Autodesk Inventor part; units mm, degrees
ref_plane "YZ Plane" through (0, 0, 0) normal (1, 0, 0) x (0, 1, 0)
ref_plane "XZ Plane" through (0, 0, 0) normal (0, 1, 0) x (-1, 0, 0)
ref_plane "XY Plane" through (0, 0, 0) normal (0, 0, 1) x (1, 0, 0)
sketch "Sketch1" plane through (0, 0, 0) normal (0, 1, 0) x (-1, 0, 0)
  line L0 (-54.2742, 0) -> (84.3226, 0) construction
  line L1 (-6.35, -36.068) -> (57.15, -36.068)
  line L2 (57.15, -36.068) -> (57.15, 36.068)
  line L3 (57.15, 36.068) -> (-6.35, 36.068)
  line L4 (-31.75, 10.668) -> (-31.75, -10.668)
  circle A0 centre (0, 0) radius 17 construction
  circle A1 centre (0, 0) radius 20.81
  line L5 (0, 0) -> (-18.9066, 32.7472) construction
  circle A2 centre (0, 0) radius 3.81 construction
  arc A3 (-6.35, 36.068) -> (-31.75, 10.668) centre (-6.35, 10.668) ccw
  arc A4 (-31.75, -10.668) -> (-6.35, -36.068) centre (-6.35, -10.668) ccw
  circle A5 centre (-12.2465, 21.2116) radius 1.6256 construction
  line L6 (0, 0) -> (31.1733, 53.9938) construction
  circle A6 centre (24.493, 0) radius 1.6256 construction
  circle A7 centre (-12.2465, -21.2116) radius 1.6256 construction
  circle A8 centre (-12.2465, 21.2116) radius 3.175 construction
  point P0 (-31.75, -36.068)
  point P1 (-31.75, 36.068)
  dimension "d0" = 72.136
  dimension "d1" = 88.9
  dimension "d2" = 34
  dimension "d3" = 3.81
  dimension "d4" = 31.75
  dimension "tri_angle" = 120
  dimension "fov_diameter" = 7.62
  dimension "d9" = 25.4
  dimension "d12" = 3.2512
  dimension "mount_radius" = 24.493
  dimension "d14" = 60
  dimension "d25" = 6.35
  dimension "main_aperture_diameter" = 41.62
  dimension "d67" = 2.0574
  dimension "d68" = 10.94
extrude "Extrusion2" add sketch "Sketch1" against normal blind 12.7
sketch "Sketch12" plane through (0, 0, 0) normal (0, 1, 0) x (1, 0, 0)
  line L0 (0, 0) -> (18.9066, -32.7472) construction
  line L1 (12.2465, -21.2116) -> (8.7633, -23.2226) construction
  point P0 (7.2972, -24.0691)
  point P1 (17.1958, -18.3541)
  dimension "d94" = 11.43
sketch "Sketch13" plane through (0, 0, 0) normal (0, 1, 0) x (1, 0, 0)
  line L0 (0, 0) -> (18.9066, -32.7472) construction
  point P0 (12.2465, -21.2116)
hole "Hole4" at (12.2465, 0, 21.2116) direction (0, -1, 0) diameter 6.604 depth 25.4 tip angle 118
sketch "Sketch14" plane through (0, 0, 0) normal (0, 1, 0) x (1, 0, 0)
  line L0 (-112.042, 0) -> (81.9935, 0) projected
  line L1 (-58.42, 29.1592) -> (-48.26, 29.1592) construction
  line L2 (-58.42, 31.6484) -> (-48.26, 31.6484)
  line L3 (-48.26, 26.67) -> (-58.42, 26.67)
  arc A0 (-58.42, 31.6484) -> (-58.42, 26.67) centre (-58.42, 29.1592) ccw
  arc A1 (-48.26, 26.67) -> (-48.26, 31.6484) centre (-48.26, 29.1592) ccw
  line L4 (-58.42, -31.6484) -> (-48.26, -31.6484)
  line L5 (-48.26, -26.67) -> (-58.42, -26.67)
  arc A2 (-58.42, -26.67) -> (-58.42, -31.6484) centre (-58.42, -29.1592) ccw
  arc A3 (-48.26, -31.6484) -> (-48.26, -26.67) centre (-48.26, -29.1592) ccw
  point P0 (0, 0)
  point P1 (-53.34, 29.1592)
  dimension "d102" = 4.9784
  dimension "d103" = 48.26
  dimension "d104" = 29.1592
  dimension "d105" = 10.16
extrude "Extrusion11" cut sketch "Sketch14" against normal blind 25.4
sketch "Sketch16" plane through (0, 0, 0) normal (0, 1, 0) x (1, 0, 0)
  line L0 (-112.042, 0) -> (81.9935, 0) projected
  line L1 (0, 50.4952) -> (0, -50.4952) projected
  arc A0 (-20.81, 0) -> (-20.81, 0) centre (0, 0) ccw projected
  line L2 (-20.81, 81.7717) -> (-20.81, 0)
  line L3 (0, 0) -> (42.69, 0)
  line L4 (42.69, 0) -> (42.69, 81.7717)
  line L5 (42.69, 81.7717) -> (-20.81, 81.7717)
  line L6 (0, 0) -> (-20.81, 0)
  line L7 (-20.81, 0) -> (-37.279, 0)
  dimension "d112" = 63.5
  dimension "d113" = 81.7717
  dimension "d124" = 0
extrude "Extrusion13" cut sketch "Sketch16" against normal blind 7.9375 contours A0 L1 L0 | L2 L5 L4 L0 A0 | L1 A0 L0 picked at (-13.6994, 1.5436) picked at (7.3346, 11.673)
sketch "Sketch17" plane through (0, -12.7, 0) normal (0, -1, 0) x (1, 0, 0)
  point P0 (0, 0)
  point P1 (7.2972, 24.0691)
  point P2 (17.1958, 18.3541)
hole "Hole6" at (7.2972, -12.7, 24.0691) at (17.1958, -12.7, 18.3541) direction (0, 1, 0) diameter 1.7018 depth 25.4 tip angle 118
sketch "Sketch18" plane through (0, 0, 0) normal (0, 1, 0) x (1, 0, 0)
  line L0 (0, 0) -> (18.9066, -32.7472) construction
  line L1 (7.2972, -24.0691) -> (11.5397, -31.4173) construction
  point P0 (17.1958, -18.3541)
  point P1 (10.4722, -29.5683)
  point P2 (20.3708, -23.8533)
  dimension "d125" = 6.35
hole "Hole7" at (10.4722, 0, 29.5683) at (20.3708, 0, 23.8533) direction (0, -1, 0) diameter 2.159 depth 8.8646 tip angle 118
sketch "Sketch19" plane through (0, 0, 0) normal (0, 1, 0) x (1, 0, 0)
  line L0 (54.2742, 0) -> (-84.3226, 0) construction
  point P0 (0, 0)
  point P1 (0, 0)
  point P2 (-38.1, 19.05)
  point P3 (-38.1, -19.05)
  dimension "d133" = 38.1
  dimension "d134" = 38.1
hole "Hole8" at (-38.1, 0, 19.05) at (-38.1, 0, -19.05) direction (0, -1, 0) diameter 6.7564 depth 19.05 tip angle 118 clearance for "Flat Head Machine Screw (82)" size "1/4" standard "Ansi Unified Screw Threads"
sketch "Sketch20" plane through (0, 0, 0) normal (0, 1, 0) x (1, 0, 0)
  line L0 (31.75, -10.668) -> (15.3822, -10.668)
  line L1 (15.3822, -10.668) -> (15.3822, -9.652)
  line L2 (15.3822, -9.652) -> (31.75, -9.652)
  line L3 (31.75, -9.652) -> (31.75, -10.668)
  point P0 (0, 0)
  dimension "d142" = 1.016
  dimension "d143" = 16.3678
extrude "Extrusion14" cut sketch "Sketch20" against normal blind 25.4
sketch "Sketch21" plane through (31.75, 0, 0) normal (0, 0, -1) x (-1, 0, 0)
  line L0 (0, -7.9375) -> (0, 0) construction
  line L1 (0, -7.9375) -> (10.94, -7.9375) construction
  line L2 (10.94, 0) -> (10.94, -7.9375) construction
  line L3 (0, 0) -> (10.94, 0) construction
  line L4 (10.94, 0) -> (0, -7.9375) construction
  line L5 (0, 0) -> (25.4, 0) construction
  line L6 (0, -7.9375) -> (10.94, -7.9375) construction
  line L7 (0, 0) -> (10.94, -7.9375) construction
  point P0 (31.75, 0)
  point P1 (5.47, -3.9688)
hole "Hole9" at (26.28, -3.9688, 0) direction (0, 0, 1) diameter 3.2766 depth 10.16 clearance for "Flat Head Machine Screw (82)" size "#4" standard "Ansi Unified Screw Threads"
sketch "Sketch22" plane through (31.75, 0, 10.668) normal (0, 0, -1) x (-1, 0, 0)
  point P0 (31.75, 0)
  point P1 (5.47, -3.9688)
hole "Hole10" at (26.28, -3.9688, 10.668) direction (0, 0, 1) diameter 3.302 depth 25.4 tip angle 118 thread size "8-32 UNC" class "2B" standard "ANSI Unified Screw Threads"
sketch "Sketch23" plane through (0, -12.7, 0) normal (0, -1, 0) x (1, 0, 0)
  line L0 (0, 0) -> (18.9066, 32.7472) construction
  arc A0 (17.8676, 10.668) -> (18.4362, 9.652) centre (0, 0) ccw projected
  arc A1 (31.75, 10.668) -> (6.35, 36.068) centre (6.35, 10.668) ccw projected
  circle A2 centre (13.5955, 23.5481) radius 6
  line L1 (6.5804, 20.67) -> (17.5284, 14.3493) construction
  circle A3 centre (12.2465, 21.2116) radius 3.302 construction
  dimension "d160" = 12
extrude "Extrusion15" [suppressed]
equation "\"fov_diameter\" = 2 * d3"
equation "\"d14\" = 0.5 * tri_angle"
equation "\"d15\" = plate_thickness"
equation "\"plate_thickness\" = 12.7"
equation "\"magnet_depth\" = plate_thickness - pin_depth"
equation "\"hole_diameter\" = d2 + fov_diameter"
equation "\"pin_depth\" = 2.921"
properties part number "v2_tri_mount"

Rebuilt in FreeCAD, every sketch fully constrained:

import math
import FreeCAD as App
import Part
import Sketcher

V = App.Vector
Q = App.Units.Quantity

doc = App.newDocument("Part")
body = doc.addObject("PartDesign::Body", "Body")

sketch1 = doc.addObject("Sketcher::SketchObject", "Sketch")
body.addObject(sketch1)
sketch1.AttachmentSupport = (doc.XZ_Plane, [""])
sketch1.MapMode = "FlatFace"
sketch1.addGeometry([
    Part.ArcOfCircle(Part.Circle(V(6.35, -10.668, 0), V(0, 0, 1), 25.4), math.radians(-90), math.radians(0)),
    Part.LineSegment(V(6.35, -36.068, 0), V(-57.15, -36.068, 0)),
    Part.LineSegment(V(-57.15, -36.068, 0), V(-57.15, 36.068, 0)),
    Part.LineSegment(V(-57.15, 36.068, 0), V(6.35, 36.068, 0)),
    Part.ArcOfCircle(Part.Circle(V(6.35, 10.668, 0), V(0, 0, 1), 25.4), math.radians(0), math.radians(90)),
    Part.LineSegment(V(31.75, 10.668, 0), V(31.75, -10.668, 0)),
    Part.Circle(V(0, 0, 0), V(0, 0, 1), 20.81),
], False)
sketch1.addConstraint([
    Sketcher.Constraint("Tangent", 0, 1, 1, 1),
    Sketcher.Constraint("Coincident", 1, 2, 2, 1),
    Sketcher.Constraint("Coincident", 2, 2, 3, 1),
    Sketcher.Constraint("Tangent", 3, 2, 4, 2),
    Sketcher.Constraint("Tangent", 4, 1, 5, 1),
    Sketcher.Constraint("Tangent", 5, 2, 0, 2),
    Sketcher.Constraint("Horizontal", 1),
    Sketcher.Constraint("Vertical", 2),
    Sketcher.Constraint("Horizontal", 3),
    Sketcher.Constraint("Vertical", 5),
    Sketcher.Constraint("Coincident", 6, 3, -1, 1),
    Sketcher.Constraint("Equal", 0, 4),
    Sketcher.Constraint("Radius", 0, Q("1 in")),
    Sketcher.Constraint("DistanceY", 2, 1, 2, 2, Q("2.84 in")),
    Sketcher.Constraint("Diameter", 6, Q("41.62 mm")),
    Sketcher.Constraint("DistanceX", -1, 1, 0, 3, Q("0.25 in")),
    Sketcher.Constraint("DistanceX", 1, 2, 1, 1, Q("2.5 in")),
    Sketcher.Constraint("DistanceY", 0, 3, -1, 1, Q("0.42 in")),
])
pad1 = doc.addObject("PartDesign::Pad", "Pad")
body.addObject(pad1)
pad1.Profile = sketch1
pad1.Length = Q("0.5 in")

sketch2 = doc.addObject("Sketcher::SketchObject", "Sketch001")
body.addObject(sketch2)
sketch2.AttachmentSupport = (doc.XZ_Plane, [""])
sketch2.MapMode = "FlatFace"
sketch2.addGeometry(Part.Circle(V(12.2465, 21.2116, 0), V(0, 0, 1), 3.302), False)
sketch2.addConstraint([
    Sketcher.Constraint("Diameter", 0, Q("0.26 in")),
    Sketcher.Constraint("DistanceY", -1, 1, 0, 3, Q("0.8351 in")),
    Sketcher.Constraint("DistanceX", -1, 1, 0, 3, Q("12.2465 mm")),
])
doc.recompute()
hole = doc.addObject("PartDesign::Hole", "Hole")
body.addObject(hole)
hole.Profile = sketch2
hole.ThreadType = "None"
hole.Diameter = Q("0.26 in")
hole.DepthType = "Dimension"
hole.Depth = Q("1 in")
hole.DrillPoint = "Angled"
hole.DrillPointAngle = 118
hole.Reversed = True

sketch3 = doc.addObject("Sketcher::SketchObject", "Sketch002")
body.addObject(sketch3)
sketch3.AttachmentSupport = (doc.XZ_Plane, [""])
sketch3.MapMode = "FlatFace"
sketch3.addGeometry([
    Part.LineSegment(V(-48.26, -31.6484, 0), V(-58.42, -31.6484, 0)),
    Part.ArcOfCircle(Part.Circle(V(-58.42, -29.1592, 0), V(0, 0, 1), 2.4892), math.radians(90), math.radians(270)),
    Part.LineSegment(V(-58.42, -26.67, 0), V(-48.26, -26.67, 0)),
    Part.ArcOfCircle(Part.Circle(V(-48.26, -29.1592, 0), V(0, 0, 1), 2.4892), math.radians(-90), math.radians(90)),
    Part.ArcOfCircle(Part.Circle(V(-58.42, 29.1592, 0), V(0, 0, 1), 2.4892), math.radians(90), math.radians(270)),
    Part.LineSegment(V(-58.42, 31.6484, 0), V(-48.26, 31.6484, 0)),
    Part.ArcOfCircle(Part.Circle(V(-48.26, 29.1592, 0), V(0, 0, 1), 2.4892), math.radians(-90), math.radians(90)),
    Part.LineSegment(V(-48.26, 26.67, 0), V(-58.42, 26.67, 0)),
], False)
sketch3.addConstraint([
    Sketcher.Constraint("Tangent", 0, 2, 1, 2),
    Sketcher.Constraint("Tangent", 1, 1, 2, 1),
    Sketcher.Constraint("Tangent", 2, 2, 3, 2),
    Sketcher.Constraint("Tangent", 3, 1, 0, 1),
    Sketcher.Constraint("Tangent", 4, 1, 5, 1),
    Sketcher.Constraint("Tangent", 5, 2, 6, 2),
    Sketcher.Constraint("Tangent", 6, 1, 7, 1),
    Sketcher.Constraint("Tangent", 7, 2, 4, 2),
    Sketcher.Constraint("Horizontal", 0),
    Sketcher.Constraint("Horizontal", 2),
    Sketcher.Constraint("Horizontal", 5),
    Sketcher.Constraint("Horizontal", 7),
    Sketcher.Constraint("Equal", 3, 4),
    Sketcher.Constraint("Symmetric", 1, 3, 4, 3, -1),
    Sketcher.Constraint("Vertical", 3, 3, 6, 3),
    Sketcher.Constraint("DistanceX", 0, 2, 0, 1, Q("0.4 in")),
    Sketcher.Constraint("Radius", 1, Q("0.098 in")),
    Sketcher.Constraint("DistanceX", 3, 3, -1, 1, Q("1.9 in")),
    Sketcher.Constraint("DistanceY", 1, 3, -1, 1, Q("1.148 in")),
])
pocket1 = doc.addObject("PartDesign::Pocket", "Pocket")
body.addObject(pocket1)
pocket1.Profile = sketch3
pocket1.Length = Q("1 in")
pocket1.Reversed = True

sketch4 = doc.addObject("Sketcher::SketchObject", "Sketch003")
body.addObject(sketch4)
sketch4.AttachmentSupport = (doc.XZ_Plane, [""])
sketch4.MapMode = "FlatFace"
sketch4.addGeometry([
    Part.LineSegment(V(-20.81, 0, 0), V(42.69, 0, 0)),
    Part.LineSegment(V(42.69, 0, 0), V(42.69, -81.7717, 0)),
    Part.LineSegment(V(42.69, -81.7717, 0), V(-20.81, -81.7717, 0)),
    Part.LineSegment(V(-20.81, -81.7717, 0), V(-20.81, 0, 0)),
], False)
sketch4.addConstraint([
    Sketcher.Constraint("Coincident", 0, 2, 1, 1),
    Sketcher.Constraint("Coincident", 1, 2, 2, 1),
    Sketcher.Constraint("Coincident", 2, 2, 3, 1),
    Sketcher.Constraint("Coincident", 3, 2, 0, 1),
    Sketcher.Constraint("Horizontal", 0),
    Sketcher.Constraint("Vertical", 1),
    Sketcher.Constraint("Horizontal", 2),
    Sketcher.Constraint("Vertical", 3),
    Sketcher.Constraint("PointOnObject", 0, 2, -1),
    Sketcher.Constraint("DistanceX", 0, 1, 0, 2, Q("2.5 in")),
    Sketcher.Constraint("DistanceY", 1, 2, 1, 1, Q("81.7717 mm")),
    Sketcher.Constraint("DistanceX", -1, 1, 0, 2, Q("1.6807 in")),
])
pocket2 = doc.addObject("PartDesign::Pocket", "Pocket001")
body.addObject(pocket2)
pocket2.Profile = sketch4
pocket2.Length = Q("0.3125 in")
pocket2.Reversed = True

sketch5 = doc.addObject("Sketcher::SketchObject", "Sketch004")
body.addObject(sketch5)
sketch5.AttachmentSupport = (doc.XZ_Plane, [""])
sketch5.MapMode = "FlatFace"
sketch5.AttachmentOffset = App.Placement(V(0, 0, 0.5 * 25.4), App.Rotation())
sketch5.addGeometry([
    Part.Circle(V(7.2972, 24.0691, 0), V(0, 0, 1), 0.8509),
    Part.Circle(V(17.1958, 18.3541, 0), V(0, 0, 1), 0.8509),
], False)
sketch5.addConstraint([
    Sketcher.Constraint("Equal", 0, 1),
    Sketcher.Constraint("Diameter", 0, Q("0.067 in")),
    Sketcher.Constraint("DistanceX", -1, 1, 1, 3, Q("0.677 in")),
    Sketcher.Constraint("DistanceY", 1, 3, 0, 3, Q("0.225 in")),
    Sketcher.Constraint("DistanceX", -1, 1, 0, 3, Q("0.2873 in")),
    Sketcher.Constraint("DistanceY", -1, 1, 0, 3, Q("0.9476 in")),
])
doc.recompute()
hole2 = doc.addObject("PartDesign::Hole", "Hole001")
body.addObject(hole2)
hole2.Profile = sketch5
hole2.ThreadType = "None"
hole2.Diameter = Q("0.067 in")
hole2.DepthType = "Dimension"
hole2.Depth = Q("1 in")
hole2.DrillPoint = "Angled"
hole2.DrillPointAngle = 118

sketch6 = doc.addObject("Sketcher::SketchObject", "Sketch005")
body.addObject(sketch6)
sketch6.AttachmentSupport = (doc.XZ_Plane, [""])
sketch6.MapMode = "FlatFace"
sketch6.addGeometry([
    Part.Circle(V(10.4722, 29.5683, 0), V(0, 0, 1), 1.0795),
    Part.Circle(V(20.3708, 23.8533, 0), V(0, 0, 1), 1.0795),
], False)
sketch6.addConstraint([
    Sketcher.Constraint("Equal", 0, 1),
    Sketcher.Constraint("Diameter", 0, Q("0.085 in")),
    Sketcher.Constraint("DistanceX", -1, 1, 1, 3, Q("0.802 in")),
    Sketcher.Constraint("DistanceY", 1, 3, 0, 3, Q("0.225 in")),
    Sketcher.Constraint("DistanceX", -1, 1, 0, 3, Q("0.4123 in")),
    Sketcher.Constraint("DistanceY", -1, 1, 0, 3, Q("1.1641 in")),
])
doc.recompute()
hole3 = doc.addObject("PartDesign::Hole", "Hole002")
body.addObject(hole3)
hole3.Profile = sketch6
hole3.ThreadType = "None"
hole3.Diameter = Q("0.085 in")
hole3.DepthType = "Dimension"
hole3.Depth = Q("0.349 in")
hole3.DrillPoint = "Angled"
hole3.DrillPointAngle = 118
hole3.Reversed = True

sketch7 = doc.addObject("Sketcher::SketchObject", "Sketch006")
body.addObject(sketch7)
sketch7.AttachmentSupport = (doc.XZ_Plane, [""])
sketch7.MapMode = "FlatFace"
sketch7.addGeometry([
    Part.Circle(V(-38.1, 19.05, 0), V(0, 0, 1), 3.3782),
    Part.Circle(V(-38.1, -19.05, 0), V(0, 0, 1), 3.3782),
], False)
sketch7.addConstraint([
    Sketcher.Constraint("Equal", 0, 1),
    Sketcher.Constraint("Symmetric", 0, 3, 1, 3, -1),
    Sketcher.Constraint("Diameter", 0, Q("0.266 in")),
    Sketcher.Constraint("DistanceX", 0, 3, -1, 1, Q("1.5 in")),
    Sketcher.Constraint("DistanceY", 1, 3, 0, 3, Q("1.5 in")),
])
doc.recompute()
hole4 = doc.addObject("PartDesign::Hole", "Hole003")
body.addObject(hole4)
hole4.Profile = sketch7
hole4.ThreadType = "None"
hole4.Diameter = Q("0.266 in")
hole4.DepthType = "Dimension"
hole4.Depth = Q("0.75 in")
hole4.DrillPoint = "Angled"
hole4.DrillPointAngle = 118
hole4.Reversed = True

sketch8 = doc.addObject("Sketcher::SketchObject", "Sketch007")
body.addObject(sketch8)
sketch8.AttachmentSupport = (doc.XZ_Plane, [""])
sketch8.MapMode = "FlatFace"
sketch8.addGeometry([
    Part.LineSegment(V(15.3822, 10.668, 0), V(31.75, 10.668, 0)),
    Part.LineSegment(V(31.75, 10.668, 0), V(31.75, 9.652, 0)),
    Part.LineSegment(V(31.75, 9.652, 0), V(15.3822, 9.652, 0)),
    Part.LineSegment(V(15.3822, 9.652, 0), V(15.3822, 10.668, 0)),
], False)
sketch8.addConstraint([
    Sketcher.Constraint("Coincident", 0, 2, 1, 1),
    Sketcher.Constraint("Coincident", 1, 2, 2, 1),
    Sketcher.Constraint("Coincident", 2, 2, 3, 1),
    Sketcher.Constraint("Coincident", 3, 2, 0, 1),
    Sketcher.Constraint("Horizontal", 0),
    Sketcher.Constraint("Vertical", 1),
    Sketcher.Constraint("Horizontal", 2),
    Sketcher.Constraint("Vertical", 3),
    Sketcher.Constraint("DistanceY", 1, 2, 1, 1, Q("0.04 in")),
    Sketcher.Constraint("DistanceX", 0, 1, 0, 2, Q("0.6444 in")),
    Sketcher.Constraint("DistanceX", -1, 1, 0, 2, Q("1.25 in")),
    Sketcher.Constraint("DistanceY", -1, 1, 0, 2, Q("0.42 in")),
])
pocket3 = doc.addObject("PartDesign::Pocket", "Pocket002")
body.addObject(pocket3)
pocket3.Profile = sketch8
pocket3.Length = Q("1 in")
pocket3.Reversed = True

sketch9 = doc.addObject("Sketcher::SketchObject", "Sketch008")
body.addObject(sketch9)
sketch9.AttachmentSupport = (doc.XY_Plane, [""])
sketch9.MapMode = "FlatFace"
sketch9.addGeometry(Part.Circle(V(26.28, -3.9688, 0), V(0, 0, 1), 1.6383), False)
sketch9.addConstraint([
    Sketcher.Constraint("Diameter", 0, Q("0.129 in")),
    Sketcher.Constraint("DistanceY", 0, 3, -1, 1, Q("0.156252 in")),
    Sketcher.Constraint("DistanceX", -1, 1, 0, 3, Q("26.28 mm")),
])
doc.recompute()
hole5 = doc.addObject("PartDesign::Hole", "Hole004")
body.addObject(hole5)
hole5.Profile = sketch9
hole5.ThreadType = "None"
hole5.Diameter = Q("0.129 in")
hole5.DepthType = "Dimension"
hole5.Depth = Q("0.4 in")
hole5.DrillPoint = "Flat"
hole5.Reversed = True

sketch10 = doc.addObject("Sketcher::SketchObject", "Sketch009")
body.addObject(sketch10)
sketch10.AttachmentSupport = (doc.XY_Plane, [""])
sketch10.MapMode = "FlatFace"
sketch10.AttachmentOffset = App.Placement(V(0, 0, 0.42 * 25.4), App.Rotation())
sketch10.addGeometry(Part.Circle(V(26.28, -3.9688, 0), V(0, 0, 1), 1.651), False)
sketch10.addConstraint([
    Sketcher.Constraint("Diameter", 0, Q("0.13 in")),
    Sketcher.Constraint("DistanceY", 0, 3, -1, 1, Q("0.156252 in")),
    Sketcher.Constraint("DistanceX", -1, 1, 0, 3, Q("26.28 mm")),
])
doc.recompute()
hole6 = doc.addObject("PartDesign::Hole", "Hole005")
body.addObject(hole6)
hole6.Profile = sketch10
hole6.ThreadType = "None"
hole6.Diameter = Q("0.13 in")
hole6.DepthType = "Dimension"
hole6.Depth = Q("1 in")
hole6.DrillPoint = "Angled"
hole6.DrillPointAngle = 118
hole6.Reversed = True

doc.recompute()
